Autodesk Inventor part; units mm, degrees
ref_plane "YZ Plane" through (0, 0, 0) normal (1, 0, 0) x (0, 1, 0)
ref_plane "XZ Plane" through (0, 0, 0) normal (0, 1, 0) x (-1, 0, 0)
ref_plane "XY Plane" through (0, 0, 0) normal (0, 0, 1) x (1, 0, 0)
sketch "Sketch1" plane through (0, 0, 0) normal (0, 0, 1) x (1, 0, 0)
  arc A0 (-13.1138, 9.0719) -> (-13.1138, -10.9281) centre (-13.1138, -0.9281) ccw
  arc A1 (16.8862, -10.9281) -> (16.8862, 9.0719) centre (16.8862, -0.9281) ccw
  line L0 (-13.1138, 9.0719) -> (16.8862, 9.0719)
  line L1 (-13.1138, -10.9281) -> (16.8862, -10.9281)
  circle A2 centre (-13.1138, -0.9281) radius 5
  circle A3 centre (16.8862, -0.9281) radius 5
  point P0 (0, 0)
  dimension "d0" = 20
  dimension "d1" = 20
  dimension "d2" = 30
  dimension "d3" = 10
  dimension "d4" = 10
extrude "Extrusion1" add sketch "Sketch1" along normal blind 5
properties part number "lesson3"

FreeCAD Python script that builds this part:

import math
import FreeCAD as App
import Part
import Sketcher

V = App.Vector
Q = App.Units.Quantity

doc = App.newDocument("Part")
body = doc.addObject("PartDesign::Body", "Body")

sketch1 = doc.addObject("Sketcher::SketchObject", "Sketch")
body.addObject(sketch1)
sketch1.AttachmentSupport = (doc.XY_Plane, [""])
sketch1.MapMode = "FlatFace"
sketch1.addGeometry([
    Part.LineSegment(V(17, 9, 0), V(-13, 9, 0)),
    Part.ArcOfCircle(Part.Circle(V(-13, -1, 0), V(0, 0, 1), 10), math.radians(90), math.radians(270)),
    Part.LineSegment(V(-13, -11, 0), V(17, -11, 0)),
    Part.ArcOfCircle(Part.Circle(V(17, -1, 0), V(0, 0, 1), 10), math.radians(-90), math.radians(90)),
    Part.Circle(V(-13, -1, 0), V(0, 0, 1), 5),
    Part.Circle(V(17, -1, 0), V(0, 0, 1), 5),
], False)
sketch1.addConstraint([
    Sketcher.Constraint("Tangent", 0, 2, 1, 1),
    Sketcher.Constraint("Tangent", 1, 2, 2, 1),
    Sketcher.Constraint("Tangent", 2, 2, 3, 1),
    Sketcher.Constraint("Tangent", 3, 2, 0, 1),
    Sketcher.Constraint("Horizontal", 0),
    Sketcher.Constraint("Horizontal", 2),
    Sketcher.Constraint("Coincident", 4, 3, 1, 3),
    Sketcher.Constraint("Coincident", 5, 3, 3, 3),
    Sketcher.Constraint("Equal", 4, 5),
    Sketcher.Constraint("Diameter", 4, Q("10 mm")),
    Sketcher.Constraint("Radius", 1, Q("10 mm")),
    Sketcher.Constraint("DistanceX", 0, 2, 0, 1, Q("30 mm")),
    Sketcher.Constraint("DistanceY", 1, 3, -1, 1, Q("0.928 mm")),
    Sketcher.Constraint("DistanceX", 1, 3, -1, 1, Q("13.1138 mm")),
])
pad1 = doc.addObject("PartDesign::Pad", "Pad")
body.addObject(pad1)
pad1.Profile = sketch1
pad1.Length = 5

doc.recompute()
